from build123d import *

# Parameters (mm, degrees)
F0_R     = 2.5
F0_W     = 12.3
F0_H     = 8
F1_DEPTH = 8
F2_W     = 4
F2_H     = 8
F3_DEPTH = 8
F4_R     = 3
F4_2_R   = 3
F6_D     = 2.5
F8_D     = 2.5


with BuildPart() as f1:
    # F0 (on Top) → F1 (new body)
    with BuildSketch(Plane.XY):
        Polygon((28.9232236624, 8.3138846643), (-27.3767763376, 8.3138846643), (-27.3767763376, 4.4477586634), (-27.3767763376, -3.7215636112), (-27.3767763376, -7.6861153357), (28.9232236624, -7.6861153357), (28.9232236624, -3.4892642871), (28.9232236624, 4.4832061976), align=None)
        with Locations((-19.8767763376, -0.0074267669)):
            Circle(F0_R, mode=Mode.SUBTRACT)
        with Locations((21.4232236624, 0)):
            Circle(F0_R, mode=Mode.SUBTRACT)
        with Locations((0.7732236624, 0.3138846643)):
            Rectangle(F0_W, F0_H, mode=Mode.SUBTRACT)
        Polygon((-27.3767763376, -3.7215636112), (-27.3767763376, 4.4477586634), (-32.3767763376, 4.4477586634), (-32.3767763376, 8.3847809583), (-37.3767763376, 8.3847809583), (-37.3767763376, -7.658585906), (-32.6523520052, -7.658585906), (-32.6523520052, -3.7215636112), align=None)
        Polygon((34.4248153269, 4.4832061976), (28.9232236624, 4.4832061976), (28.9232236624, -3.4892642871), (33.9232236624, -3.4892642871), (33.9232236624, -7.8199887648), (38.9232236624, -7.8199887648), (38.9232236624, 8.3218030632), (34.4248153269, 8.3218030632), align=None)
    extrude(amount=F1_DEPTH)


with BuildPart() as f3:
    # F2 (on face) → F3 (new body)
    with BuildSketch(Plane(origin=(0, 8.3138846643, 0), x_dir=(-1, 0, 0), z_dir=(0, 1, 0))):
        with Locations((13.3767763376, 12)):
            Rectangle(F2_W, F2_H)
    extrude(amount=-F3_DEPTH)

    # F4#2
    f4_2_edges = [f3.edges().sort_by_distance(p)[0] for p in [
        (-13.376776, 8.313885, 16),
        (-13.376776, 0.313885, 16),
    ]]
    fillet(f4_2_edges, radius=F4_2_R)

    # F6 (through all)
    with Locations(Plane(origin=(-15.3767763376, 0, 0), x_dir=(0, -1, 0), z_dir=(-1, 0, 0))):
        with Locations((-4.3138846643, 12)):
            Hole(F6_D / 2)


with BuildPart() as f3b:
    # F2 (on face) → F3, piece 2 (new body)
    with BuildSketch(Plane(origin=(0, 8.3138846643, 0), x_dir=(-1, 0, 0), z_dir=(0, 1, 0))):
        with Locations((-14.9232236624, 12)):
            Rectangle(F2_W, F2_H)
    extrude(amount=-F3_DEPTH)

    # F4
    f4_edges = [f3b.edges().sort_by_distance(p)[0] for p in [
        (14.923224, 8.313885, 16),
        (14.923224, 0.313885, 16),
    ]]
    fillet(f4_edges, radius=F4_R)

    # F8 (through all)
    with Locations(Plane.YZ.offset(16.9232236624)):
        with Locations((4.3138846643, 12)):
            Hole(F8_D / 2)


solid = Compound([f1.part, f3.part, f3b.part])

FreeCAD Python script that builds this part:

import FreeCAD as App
import Part
import Sketcher
Q = App.Units.Quantity


def edges_at(feature, points):
    """Names of the edges that pass closest to the given points."""
    edges = feature.Shape.Edges
    near = lambda p: min(range(len(edges)), key=lambda i: edges[i].distToShape(Part.Vertex(*p))[0])
    return sorted({f"Edge{near(p) + 1}" for p in points})


def add_polygon(sketch, points):
    """Adds a closed chain of lines whose ends are joined by coincident constraints."""
    first, n = sketch.GeometryCount, len(points)
    for a, b in zip(points, points[1:] + points[:1]):
        sketch.addGeometry(Part.LineSegment(App.Vector(*a, 0), App.Vector(*b, 0)), False)
    for i in range(n):
        sketch.addConstraint(Sketcher.Constraint("Coincident", first + i, 2, first + (i + 1) % n, 1))

doc = App.newDocument("Part")
params = doc.addObject("Spreadsheet::Sheet", "Params")
for row, (alias, value) in enumerate([
    ("sketch1_diameter", "5 mm"),
    ("sketch1_width", "5 mm"),
    ("sketch1_height", "8 mm"),
    ("sketch1_width2", "56.3 mm"),
    ("sketch1_width3", "12.3 mm"),
    ("pad1_length", "8 mm"),
    ("sketch2_width", "4 mm"),
    ("sketch2_height", "8 mm"),
    ("pad2_length", "8 mm"),
    ("fillet_radius", "3 mm"),
    ("sketch3_diameter", "2.5 mm"),
    ("hole_diameter", "2.5 mm"),
    ("sketch4_width", "4 mm"),
    ("sketch4_height", "8 mm"),
    ("pad3_length", "8 mm"),
    ("fillet2_radius", "3 mm"),
    ("sketch5_diameter", "2.5 mm"),
    ("hole2_diameter", "2.5 mm"),
], start=1):
    params.set(f"A{row}", alias)
    params.set(f"B{row}", "=" + value)
    params.setAlias(f"B{row}", alias)

body = doc.addObject("PartDesign::Body", "Body")

sketch1 = doc.addObject("Sketcher::SketchObject", "Sketch")
body.addObject(sketch1)
sketch1.AttachmentSupport = (doc.XY_Plane, [""])
sketch1.MapMode = "FlatFace"
add_polygon(sketch1, [(28.9, 8.3), (-27.4, 8.3), (-27.4, 4.4), (-32.4, 4.4), (-32.4, 8.4), (-37.4, 8.4), (-37.4, -7.7), (-32.7, -7.7), (-32.7, -3.7), (-27.4, -3.7), (-27.4, -7.7), (28.9, -7.7), (28.9, -3.5), (33.9, -3.5), (33.9, -7.8), (38.9, -7.8), (38.9, 8.3), (34.4, 8.3), (34.4, 4.5), (28.9, 4.5)])
sketch1.addGeometry(Part.Circle(App.Vector(-19.9, 0, 0), App.Vector(0, 0, 1), 2.5), False)
sketch1.addGeometry(Part.Circle(App.Vector(21.4, 0, 0), App.Vector(0, 0, 1), 2.5), False)
add_polygon(sketch1, [(6.9, -3.7), (-5.4, -3.7), (-5.4, 4.3), (6.9, 4.3)])
sketch1.addConstraint(Sketcher.Constraint("Horizontal", 0))
sketch1.addConstraint(Sketcher.Constraint("Vertical", 1))
sketch1.addConstraint(Sketcher.Constraint("Horizontal", 2))
sketch1.addConstraint(Sketcher.Constraint("Vertical", 3))
sketch1.addConstraint(Sketcher.Constraint("Horizontal", 4))
sketch1.addConstraint(Sketcher.Constraint("Vertical", 5))
sketch1.addConstraint(Sketcher.Constraint("Horizontal", 6))
sketch1.addConstraint(Sketcher.Constraint("Vertical", 7))
sketch1.addConstraint(Sketcher.Constraint("Horizontal", 8))
sketch1.addConstraint(Sketcher.Constraint("Vertical", 9))
sketch1.addConstraint(Sketcher.Constraint("Horizontal", 10))
sketch1.addConstraint(Sketcher.Constraint("Vertical", 11))
sketch1.addConstraint(Sketcher.Constraint("Horizontal", 12))
sketch1.addConstraint(Sketcher.Constraint("Vertical", 13))
sketch1.addConstraint(Sketcher.Constraint("Horizontal", 14))
sketch1.addConstraint(Sketcher.Constraint("Vertical", 15))
sketch1.addConstraint(Sketcher.Constraint("Horizontal", 16))
sketch1.addConstraint(Sketcher.Constraint("Vertical", 17))
sketch1.addConstraint(Sketcher.Constraint("Horizontal", 18))
sketch1.addConstraint(Sketcher.Constraint("Vertical", 19))
sketch1.addConstraint(Sketcher.Constraint("Horizontal", 22))
sketch1.addConstraint(Sketcher.Constraint("Vertical", 23))
sketch1.addConstraint(Sketcher.Constraint("Horizontal", 24))
sketch1.addConstraint(Sketcher.Constraint("Vertical", 25))
sketch1.addConstraint(Sketcher.Constraint("Equal", 20, 21))
sketch1.addConstraint(Sketcher.Constraint("PointOnObject", 21, 3, -1))
sketch1.addConstraint(Sketcher.Constraint("Vertical", 1, 2, 8, 2))
sketch1.addConstraint(Sketcher.Constraint("Vertical", 11, 2, 18, 2))
sketch1.addConstraint(Sketcher.Constraint("Equal", 2, 4))
sketch1.addConstraint(Sketcher.Constraint("Equal", 4, 12))
sketch1.addConstraint(Sketcher.Constraint("Equal", 12, 14))
sketch1.addConstraint(Sketcher.Constraint("Equal", 3, 7))
sketch1.addConstraint(Sketcher.Constraint("Diameter", 20, Q("5 mm")))
sketch1.addConstraint(Sketcher.Constraint("DistanceX", 2, 2, 2, 1, Q("5 mm")))
sketch1.addConstraint(Sketcher.Constraint("DistanceY", 23, 1, 23, 2, Q("8 mm")))
sketch1.addConstraint(Sketcher.Constraint("DistanceX", 0, 2, 0, 1, Q("56.3 mm")))
sketch1.addConstraint(Sketcher.Constraint("DistanceX", 22, 2, 22, 1, Q("12.3 mm")))
sketch1.addConstraint(Sketcher.Constraint("DistanceX", 8, 2, 22, 2, Q("22 mm")))
sketch1.addConstraint(Sketcher.Constraint("DistanceY", 9, 2, 22, 2, Q("4 mm")))
sketch1.addConstraint(Sketcher.Constraint("DistanceY", 22, 2, 0, 2, Q("12 mm")))
sketch1.addConstraint(Sketcher.Constraint("DistanceX", 20, 3, 21, 3, Q("41.3 mm")))
sketch1.addConstraint(Sketcher.Constraint("DistanceX", 0, 2, 20, 3, Q("7.5 mm")))
sketch1.addConstraint(Sketcher.Constraint("DistanceX", 16, 2, 16, 1, Q("4.498408 mm")))
sketch1.addConstraint(Sketcher.Constraint("DistanceY", 9, 2, 9, 1, Q("3.964552 mm")))
sketch1.addConstraint(Sketcher.Constraint("DistanceY", 11, 1, 11, 2, Q("4.196851 mm")))
sketch1.addConstraint(Sketcher.Constraint("DistanceY", 15, 1, 15, 2, Q("16.141792 mm")))
sketch1.addConstraint(Sketcher.Constraint("DistanceY", 19, 1, 19, 2, Q("3.830678 mm")))
sketch1.addConstraint(Sketcher.Constraint("DistanceX", 6, 1, 6, 2, Q("4.724424 mm")))
sketch1.addConstraint(Sketcher.Constraint("DistanceY", 1, 2, 1, 1, Q("3.866126 mm")))
sketch1.addConstraint(Sketcher.Constraint("DistanceY", 3, 1, 3, 2, Q("3.937022 mm")))
sketch1.addConstraint(Sketcher.Constraint("DistanceY", 13, 2, 13, 1, Q("4.330724 mm")))
sketch1.addConstraint(Sketcher.Constraint("DistanceY", -1, 1, 1, 2, Q("4.447759 mm")))
sketch1.addConstraint(Sketcher.Constraint("DistanceY", 20, 3, 0, 2, Q("8.321311 mm")))
sketch1.addConstraint(Sketcher.Constraint("DistanceX", 20, 3, -1, 1, Q("19.876776 mm")))
sketch1.setExpression("Constraints[56]", "Params.sketch1_diameter")
sketch1.setExpression("Constraints[57]", "Params.sketch1_width")
sketch1.setExpression("Constraints[58]", "Params.sketch1_height")
sketch1.setExpression("Constraints[59]", "Params.sketch1_width2")
sketch1.setExpression("Constraints[60]", "Params.sketch1_width3")
pad1 = doc.addObject("PartDesign::Pad", "Pad")
body.addObject(pad1)
pad1.Profile = sketch1
pad1.setExpression("Length", "Params.pad1_length")
body2 = doc.addObject("PartDesign::Body", "Body001")

sketch2 = doc.addObject("Sketcher::SketchObject", "Sketch001")
body2.addObject(sketch2)
sketch2.AttachmentSupport = (doc.getObject("XZ_Plane001"), [""])
sketch2.MapMode = "FlatFace"
sketch2.AttachmentOffset = App.Placement(App.Vector(0, 0, -8.313885), App.Rotation())
add_polygon(sketch2, [(-11.4, 16), (-11.4, 8), (-15.4, 8), (-15.4, 16)])
sketch2.addConstraint(Sketcher.Constraint("Vertical", 0))
sketch2.addConstraint(Sketcher.Constraint("Horizontal", 1))
sketch2.addConstraint(Sketcher.Constraint("Vertical", 2))
sketch2.addConstraint(Sketcher.Constraint("Horizontal", 3))
sketch2.addConstraint(Sketcher.Constraint("DistanceX", 1, 2, 1, 1, Q("4 mm")))
sketch2.addConstraint(Sketcher.Constraint("DistanceY", 0, 2, 0, 1, Q("8 mm")))
sketch2.addConstraint(Sketcher.Constraint("DistanceY", -1, 1, 0, 2, Q("8 mm")))
sketch2.addConstraint(Sketcher.Constraint("DistanceX", 0, 2, -1, 1, Q("11.376776 mm")))
sketch2.setExpression("Constraints[8]", "Params.sketch2_width")
sketch2.setExpression("Constraints[9]", "Params.sketch2_height")
pad2 = doc.addObject("PartDesign::Pad", "Pad001")
body2.addObject(pad2)
pad2.Profile = sketch2
pad2.setExpression("Length", "Params.pad2_length")
doc.recompute()

fillet = doc.addObject("PartDesign::Fillet", "Fillet")
body2.addObject(fillet)
fillet.Base = (pad2, edges_at(pad2, [(-13.377, 8.314, 16), (-13.377, 0.314, 16)]))
fillet.setExpression("Radius", "Params.fillet_radius")

sketch3 = doc.addObject("Sketcher::SketchObject", "Sketch002")
body2.addObject(sketch3)
sketch3.AttachmentSupport = (doc.getObject("YZ_Plane001"), [""])
sketch3.MapMode = "FlatFace"
sketch3.AttachmentOffset = App.Placement(App.Vector(0, 0, -15.376776), App.Rotation())
sketch3.addGeometry(Part.Circle(App.Vector(4.3, 12, 0), App.Vector(0, 0, 1), 1.2), False)
sketch3.addConstraint(Sketcher.Constraint("Diameter", 0, Q("2.5 mm")))
sketch3.addConstraint(Sketcher.Constraint("DistanceY", -1, 1, 0, 3, Q("12 mm")))
sketch3.addConstraint(Sketcher.Constraint("DistanceX", -1, 1, 0, 3, Q("4.313885 mm")))
sketch3.setExpression("Constraints[0]", "Params.sketch3_diameter")
doc.recompute()
hole = doc.addObject("PartDesign::Hole", "Hole")
body2.addObject(hole)
hole.Profile = sketch3
hole.ThreadType = "None"
hole.setExpression("Diameter", "Params.hole_diameter")
hole.DepthType = "ThroughAll"
hole.Reversed = True
body3 = doc.addObject("PartDesign::Body", "Body002")

sketch4 = doc.addObject("Sketcher::SketchObject", "Sketch003")
body3.addObject(sketch4)
sketch4.AttachmentSupport = (doc.getObject("XZ_Plane002"), [""])
sketch4.MapMode = "FlatFace"
sketch4.AttachmentOffset = App.Placement(App.Vector(0, 0, -8.313885), App.Rotation())
add_polygon(sketch4, [(16.9, 16), (16.9, 8), (12.9, 8), (12.9, 16)])
sketch4.addConstraint(Sketcher.Constraint("Vertical", 0))
sketch4.addConstraint(Sketcher.Constraint("Horizontal", 1))
sketch4.addConstraint(Sketcher.Constraint("Vertical", 2))
sketch4.addConstraint(Sketcher.Constraint("Horizontal", 3))
sketch4.addConstraint(Sketcher.Constraint("DistanceX", 1, 2, 1, 1, Q("4 mm")))
sketch4.addConstraint(Sketcher.Constraint("DistanceY", 0, 2, 0, 1, Q("8 mm")))
sketch4.addConstraint(Sketcher.Constraint("DistanceY", -1, 1, 0, 2, Q("8 mm")))
sketch4.addConstraint(Sketcher.Constraint("DistanceX", -1, 1, 0, 2, Q("16.923224 mm")))
sketch4.setExpression("Constraints[8]", "Params.sketch4_width")
sketch4.setExpression("Constraints[9]", "Params.sketch4_height")
pad3 = doc.addObject("PartDesign::Pad", "Pad002")
body3.addObject(pad3)
pad3.Profile = sketch4
pad3.setExpression("Length", "Params.pad3_length")
doc.recompute()

fillet2 = doc.addObject("PartDesign::Fillet", "Fillet001")
body3.addObject(fillet2)
fillet2.Base = (pad3, edges_at(pad3, [(14.923, 8.314, 16), (14.923, 0.314, 16)]))
fillet2.setExpression("Radius", "Params.fillet2_radius")

sketch5 = doc.addObject("Sketcher::SketchObject", "Sketch004")
body3.addObject(sketch5)
sketch5.AttachmentSupport = (doc.getObject("YZ_Plane002"), [""])
sketch5.MapMode = "FlatFace"
sketch5.AttachmentOffset = App.Placement(App.Vector(0, 0, 16.923224), App.Rotation())
sketch5.addGeometry(Part.Circle(App.Vector(4.3, 12, 0), App.Vector(0, 0, 1), 1.2), False)
sketch5.addConstraint(Sketcher.Constraint("Diameter", 0, Q("2.5 mm")))
sketch5.addConstraint(Sketcher.Constraint("DistanceY", -1, 1, 0, 3, Q("12 mm")))
sketch5.addConstraint(Sketcher.Constraint("DistanceX", -1, 1, 0, 3, Q("4.313885 mm")))
sketch5.setExpression("Constraints[0]", "Params.sketch5_diameter")
doc.recompute()
hole2 = doc.addObject("PartDesign::Hole", "Hole001")
body3.addObject(hole2)
hole2.Profile = sketch5
hole2.ThreadType = "None"
hole2.setExpression("Diameter", "Params.hole2_diameter")
hole2.DepthType = "ThroughAll"

doc.recompute()
